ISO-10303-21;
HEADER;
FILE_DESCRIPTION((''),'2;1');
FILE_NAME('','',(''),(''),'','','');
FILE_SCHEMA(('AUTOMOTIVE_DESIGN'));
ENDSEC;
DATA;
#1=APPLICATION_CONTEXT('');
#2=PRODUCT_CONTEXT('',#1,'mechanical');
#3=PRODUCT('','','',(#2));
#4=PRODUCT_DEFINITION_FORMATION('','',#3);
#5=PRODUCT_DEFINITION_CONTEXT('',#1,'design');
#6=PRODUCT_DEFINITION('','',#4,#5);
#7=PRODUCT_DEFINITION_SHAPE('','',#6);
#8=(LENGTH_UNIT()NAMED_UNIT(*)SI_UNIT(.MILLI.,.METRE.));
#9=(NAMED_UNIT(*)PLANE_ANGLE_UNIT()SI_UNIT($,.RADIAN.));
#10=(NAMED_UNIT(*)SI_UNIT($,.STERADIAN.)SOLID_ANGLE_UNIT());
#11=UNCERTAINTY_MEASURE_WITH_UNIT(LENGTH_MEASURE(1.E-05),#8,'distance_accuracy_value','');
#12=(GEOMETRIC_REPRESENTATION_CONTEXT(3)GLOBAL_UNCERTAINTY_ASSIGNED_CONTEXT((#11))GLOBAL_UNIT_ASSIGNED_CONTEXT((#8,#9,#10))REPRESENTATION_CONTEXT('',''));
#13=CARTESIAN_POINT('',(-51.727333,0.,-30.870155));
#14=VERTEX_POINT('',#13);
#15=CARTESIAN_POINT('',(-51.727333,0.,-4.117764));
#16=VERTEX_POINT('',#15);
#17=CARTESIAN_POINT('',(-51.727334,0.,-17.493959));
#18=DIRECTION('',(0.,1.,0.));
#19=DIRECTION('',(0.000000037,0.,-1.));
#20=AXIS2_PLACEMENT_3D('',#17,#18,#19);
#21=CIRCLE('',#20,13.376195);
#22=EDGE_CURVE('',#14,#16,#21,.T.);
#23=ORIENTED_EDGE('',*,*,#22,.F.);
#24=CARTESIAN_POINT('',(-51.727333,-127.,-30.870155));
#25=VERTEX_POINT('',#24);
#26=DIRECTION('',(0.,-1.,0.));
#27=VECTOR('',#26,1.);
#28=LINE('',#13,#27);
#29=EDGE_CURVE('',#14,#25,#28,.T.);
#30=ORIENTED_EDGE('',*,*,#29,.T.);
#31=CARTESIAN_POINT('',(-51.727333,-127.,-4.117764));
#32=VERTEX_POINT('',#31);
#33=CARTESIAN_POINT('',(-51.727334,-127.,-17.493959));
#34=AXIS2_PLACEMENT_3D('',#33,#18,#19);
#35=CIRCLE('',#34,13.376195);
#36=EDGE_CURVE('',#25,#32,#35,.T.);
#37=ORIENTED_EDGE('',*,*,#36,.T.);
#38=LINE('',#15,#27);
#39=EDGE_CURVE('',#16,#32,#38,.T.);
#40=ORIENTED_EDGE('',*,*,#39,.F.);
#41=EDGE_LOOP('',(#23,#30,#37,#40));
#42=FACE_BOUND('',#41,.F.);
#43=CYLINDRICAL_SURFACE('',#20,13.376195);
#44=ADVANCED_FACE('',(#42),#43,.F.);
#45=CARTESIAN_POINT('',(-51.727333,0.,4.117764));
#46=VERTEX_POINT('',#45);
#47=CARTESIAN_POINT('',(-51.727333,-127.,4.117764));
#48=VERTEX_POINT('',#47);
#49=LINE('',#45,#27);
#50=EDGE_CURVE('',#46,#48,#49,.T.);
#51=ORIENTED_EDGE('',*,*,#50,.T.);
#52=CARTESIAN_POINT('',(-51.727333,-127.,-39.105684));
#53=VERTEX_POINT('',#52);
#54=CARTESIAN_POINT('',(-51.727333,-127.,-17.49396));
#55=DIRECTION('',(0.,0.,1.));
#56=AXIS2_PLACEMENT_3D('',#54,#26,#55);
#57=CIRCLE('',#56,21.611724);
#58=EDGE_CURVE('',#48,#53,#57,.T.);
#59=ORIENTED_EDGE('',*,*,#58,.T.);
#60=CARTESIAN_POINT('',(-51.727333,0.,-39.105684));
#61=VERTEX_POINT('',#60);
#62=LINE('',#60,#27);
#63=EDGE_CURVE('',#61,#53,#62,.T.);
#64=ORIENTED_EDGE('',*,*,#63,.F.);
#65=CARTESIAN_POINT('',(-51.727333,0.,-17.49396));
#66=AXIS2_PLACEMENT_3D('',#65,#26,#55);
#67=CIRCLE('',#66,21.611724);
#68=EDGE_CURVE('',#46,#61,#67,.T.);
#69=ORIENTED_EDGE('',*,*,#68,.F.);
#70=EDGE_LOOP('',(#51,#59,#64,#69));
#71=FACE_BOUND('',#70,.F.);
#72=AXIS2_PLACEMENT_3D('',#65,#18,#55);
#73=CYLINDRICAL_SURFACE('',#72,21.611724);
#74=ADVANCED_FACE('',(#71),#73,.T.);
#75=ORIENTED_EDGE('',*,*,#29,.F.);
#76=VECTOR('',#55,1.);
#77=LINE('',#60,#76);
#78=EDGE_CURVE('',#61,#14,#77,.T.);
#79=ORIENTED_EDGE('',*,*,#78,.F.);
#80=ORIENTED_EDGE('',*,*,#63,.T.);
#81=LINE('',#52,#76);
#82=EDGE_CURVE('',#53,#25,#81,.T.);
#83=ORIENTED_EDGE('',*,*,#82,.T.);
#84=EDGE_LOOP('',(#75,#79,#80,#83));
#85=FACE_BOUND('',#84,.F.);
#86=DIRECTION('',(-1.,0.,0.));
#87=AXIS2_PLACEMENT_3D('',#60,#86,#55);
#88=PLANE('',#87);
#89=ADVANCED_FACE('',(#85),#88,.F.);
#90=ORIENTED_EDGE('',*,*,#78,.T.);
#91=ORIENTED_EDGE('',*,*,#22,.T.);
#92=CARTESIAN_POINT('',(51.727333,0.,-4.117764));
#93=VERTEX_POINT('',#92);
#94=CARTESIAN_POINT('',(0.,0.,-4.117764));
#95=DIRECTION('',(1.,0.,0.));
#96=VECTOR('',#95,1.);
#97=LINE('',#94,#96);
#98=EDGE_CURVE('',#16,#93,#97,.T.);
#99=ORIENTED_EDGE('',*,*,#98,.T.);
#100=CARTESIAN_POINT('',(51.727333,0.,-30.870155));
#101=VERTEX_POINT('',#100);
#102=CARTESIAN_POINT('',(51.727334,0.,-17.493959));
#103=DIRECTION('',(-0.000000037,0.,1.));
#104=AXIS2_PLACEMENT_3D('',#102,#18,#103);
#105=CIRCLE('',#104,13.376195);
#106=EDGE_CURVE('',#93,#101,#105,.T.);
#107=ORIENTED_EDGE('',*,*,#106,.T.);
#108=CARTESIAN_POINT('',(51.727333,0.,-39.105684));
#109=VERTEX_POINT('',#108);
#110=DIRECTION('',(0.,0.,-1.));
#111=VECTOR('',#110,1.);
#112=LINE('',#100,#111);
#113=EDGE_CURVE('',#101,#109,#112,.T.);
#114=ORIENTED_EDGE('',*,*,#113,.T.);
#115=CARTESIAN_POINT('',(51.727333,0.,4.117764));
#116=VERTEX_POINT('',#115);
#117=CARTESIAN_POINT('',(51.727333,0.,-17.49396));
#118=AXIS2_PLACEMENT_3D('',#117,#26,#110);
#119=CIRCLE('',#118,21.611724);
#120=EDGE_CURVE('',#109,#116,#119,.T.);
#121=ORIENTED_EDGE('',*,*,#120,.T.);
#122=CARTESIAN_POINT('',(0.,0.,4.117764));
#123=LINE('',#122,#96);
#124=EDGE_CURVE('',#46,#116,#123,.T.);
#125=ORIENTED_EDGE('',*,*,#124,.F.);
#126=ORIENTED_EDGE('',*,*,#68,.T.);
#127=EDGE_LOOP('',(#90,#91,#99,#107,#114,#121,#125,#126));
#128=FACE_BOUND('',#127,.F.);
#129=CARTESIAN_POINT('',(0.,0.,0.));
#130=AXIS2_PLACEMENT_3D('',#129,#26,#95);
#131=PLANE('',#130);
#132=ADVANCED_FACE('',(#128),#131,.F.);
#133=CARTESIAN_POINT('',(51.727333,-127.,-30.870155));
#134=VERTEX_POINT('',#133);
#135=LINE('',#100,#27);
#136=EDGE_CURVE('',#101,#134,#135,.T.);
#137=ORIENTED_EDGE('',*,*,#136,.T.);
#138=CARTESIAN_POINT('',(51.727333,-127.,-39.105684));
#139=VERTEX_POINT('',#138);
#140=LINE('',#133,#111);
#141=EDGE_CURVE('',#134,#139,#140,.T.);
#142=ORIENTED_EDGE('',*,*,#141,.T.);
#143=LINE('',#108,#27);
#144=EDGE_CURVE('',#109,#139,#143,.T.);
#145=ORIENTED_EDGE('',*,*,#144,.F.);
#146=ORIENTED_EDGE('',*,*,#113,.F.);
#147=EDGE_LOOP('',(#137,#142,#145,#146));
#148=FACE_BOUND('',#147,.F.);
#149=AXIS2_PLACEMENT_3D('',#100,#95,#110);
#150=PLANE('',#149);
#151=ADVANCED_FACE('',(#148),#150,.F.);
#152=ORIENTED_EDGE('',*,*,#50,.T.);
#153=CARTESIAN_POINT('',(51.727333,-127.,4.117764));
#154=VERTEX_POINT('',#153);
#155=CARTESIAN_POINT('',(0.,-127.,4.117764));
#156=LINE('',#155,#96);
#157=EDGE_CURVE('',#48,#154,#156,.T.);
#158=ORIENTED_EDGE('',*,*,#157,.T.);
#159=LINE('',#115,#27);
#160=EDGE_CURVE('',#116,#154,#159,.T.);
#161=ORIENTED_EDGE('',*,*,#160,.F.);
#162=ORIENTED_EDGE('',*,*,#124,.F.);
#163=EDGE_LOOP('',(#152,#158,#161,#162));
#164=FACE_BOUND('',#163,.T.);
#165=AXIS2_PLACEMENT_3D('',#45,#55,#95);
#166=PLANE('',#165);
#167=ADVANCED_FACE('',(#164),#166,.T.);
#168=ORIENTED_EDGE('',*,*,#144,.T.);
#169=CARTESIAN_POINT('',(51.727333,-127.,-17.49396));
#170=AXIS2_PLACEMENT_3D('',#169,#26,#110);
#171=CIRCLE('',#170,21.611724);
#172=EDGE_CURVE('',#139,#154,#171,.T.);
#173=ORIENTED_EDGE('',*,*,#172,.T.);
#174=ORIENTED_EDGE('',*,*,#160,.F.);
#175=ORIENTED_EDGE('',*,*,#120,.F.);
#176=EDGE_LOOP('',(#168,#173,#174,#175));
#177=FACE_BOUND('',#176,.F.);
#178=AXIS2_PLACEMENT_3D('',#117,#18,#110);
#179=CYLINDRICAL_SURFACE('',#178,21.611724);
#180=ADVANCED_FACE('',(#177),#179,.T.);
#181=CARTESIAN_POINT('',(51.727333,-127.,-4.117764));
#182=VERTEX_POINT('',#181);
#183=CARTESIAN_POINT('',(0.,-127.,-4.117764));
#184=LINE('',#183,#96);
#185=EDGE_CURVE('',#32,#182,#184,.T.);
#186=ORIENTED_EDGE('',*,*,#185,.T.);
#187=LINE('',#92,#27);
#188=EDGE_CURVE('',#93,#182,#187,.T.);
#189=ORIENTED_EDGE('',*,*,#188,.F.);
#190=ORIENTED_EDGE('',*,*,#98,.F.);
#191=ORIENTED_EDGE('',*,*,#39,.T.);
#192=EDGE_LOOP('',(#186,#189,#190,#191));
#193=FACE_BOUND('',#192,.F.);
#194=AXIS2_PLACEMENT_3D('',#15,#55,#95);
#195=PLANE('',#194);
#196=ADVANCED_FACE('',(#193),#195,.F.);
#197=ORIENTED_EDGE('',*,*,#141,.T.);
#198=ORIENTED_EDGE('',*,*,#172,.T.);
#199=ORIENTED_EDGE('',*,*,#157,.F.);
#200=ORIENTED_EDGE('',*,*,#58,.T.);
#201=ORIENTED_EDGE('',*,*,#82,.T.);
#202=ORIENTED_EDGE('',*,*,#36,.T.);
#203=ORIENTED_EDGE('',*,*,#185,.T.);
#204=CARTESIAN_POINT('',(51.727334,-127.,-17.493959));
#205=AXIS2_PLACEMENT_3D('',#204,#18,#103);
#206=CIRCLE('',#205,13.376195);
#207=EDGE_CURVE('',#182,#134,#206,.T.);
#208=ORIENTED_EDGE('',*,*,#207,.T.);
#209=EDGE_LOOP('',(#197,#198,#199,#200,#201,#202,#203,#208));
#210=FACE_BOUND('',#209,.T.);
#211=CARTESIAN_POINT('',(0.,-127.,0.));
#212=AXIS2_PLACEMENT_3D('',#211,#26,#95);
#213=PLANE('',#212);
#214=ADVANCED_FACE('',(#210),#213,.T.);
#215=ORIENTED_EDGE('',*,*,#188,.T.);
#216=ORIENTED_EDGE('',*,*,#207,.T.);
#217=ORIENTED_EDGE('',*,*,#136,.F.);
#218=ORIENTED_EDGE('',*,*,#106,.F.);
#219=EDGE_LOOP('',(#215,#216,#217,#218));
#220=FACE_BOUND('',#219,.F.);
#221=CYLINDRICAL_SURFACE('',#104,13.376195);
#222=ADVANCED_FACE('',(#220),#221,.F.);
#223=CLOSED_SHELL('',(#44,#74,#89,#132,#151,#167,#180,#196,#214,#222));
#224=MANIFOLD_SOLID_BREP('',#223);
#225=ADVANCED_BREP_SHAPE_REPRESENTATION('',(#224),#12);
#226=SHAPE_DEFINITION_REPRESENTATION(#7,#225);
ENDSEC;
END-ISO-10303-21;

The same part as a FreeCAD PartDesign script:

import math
import FreeCAD as App
import Part
import Sketcher
Q = App.Units.Quantity

doc = App.newDocument("Part")
body = doc.addObject("PartDesign::Body", "Body")

# Sketch on XZ plane
sketch1 = body.newObject("Sketcher::SketchObject", "Sketch")
sketch1.AttachmentSupport = (doc.getObject("XZ_Plane"), [""])
sketch1.MapMode = "FlatFace"
sketch1.addGeometry([
    Part.LineSegment(App.Vector(-52, -4, 0), App.Vector(52, -4, 0)),  # 0
    Part.ArcOfCircle(Part.Circle(App.Vector(52, -17, 0), App.Vector(0, 0, 1), 13), math.radians(-90), math.radians(90)),  # 1
    Part.LineSegment(App.Vector(52, -31, 0), App.Vector(52, -39, 0)),  # 2
    Part.ArcOfCircle(Part.Circle(App.Vector(52, -17, 0), App.Vector(0, 0, 1), 22), math.radians(-90), math.radians(90)),  # 3
    Part.LineSegment(App.Vector(52, 4, 0), App.Vector(-52, 4, 0)),  # 4
    Part.ArcOfCircle(Part.Circle(App.Vector(-52, -17, 0), App.Vector(0, 0, 1), 22), math.radians(90), math.radians(270)),  # 5
    Part.LineSegment(App.Vector(-52, -39, 0), App.Vector(-52, -31, 0)),  # 6
    Part.ArcOfCircle(Part.Circle(App.Vector(-52, -17, 0), App.Vector(0, 0, 1), 13), math.radians(90), math.radians(270)),  # 7
], False)
sketch1.addConstraint([
    Sketcher.Constraint("Tangent", 0, 2, 1, 2),
    Sketcher.Constraint("Coincident", 1, 1, 2, 1),
    Sketcher.Constraint("Coincident", 2, 2, 3, 1),
    Sketcher.Constraint("Tangent", 3, 2, 4, 1),
    Sketcher.Constraint("Tangent", 4, 2, 5, 1),
    Sketcher.Constraint("Coincident", 5, 2, 6, 1),
    Sketcher.Constraint("Coincident", 6, 2, 7, 2),
    Sketcher.Constraint("Tangent", 7, 1, 0, 1),
    Sketcher.Constraint("Horizontal", 0),
    Sketcher.Constraint("Vertical", 2),
    Sketcher.Constraint("Horizontal", 4),
    Sketcher.Constraint("Vertical", 6),
    Sketcher.Constraint("Coincident", 3, 3, 1, 3),
    Sketcher.Constraint("Coincident", 7, 3, 5, 3),
    Sketcher.Constraint("Equal", 3, 5),
    Sketcher.Constraint("Symmetric", 0, 2, 4, 2, -1, 1),
    Sketcher.Constraint("Vertical", 0, 2, 1, 1),
    Sketcher.Constraint("Vertical", 4, 2, 5, 2),
    Sketcher.Constraint("Radius", 1, Q("13.376195 mm")),
    Sketcher.Constraint("Radius", 3, Q("21.611724 mm")),
    Sketcher.Constraint("DistanceX", 0, 1, 0, 2, Q("103.454666 mm")),
])
pad1 = body.newObject("PartDesign::Pad", "Pad")
pad1.Profile = sketch1
pad1.Length = Q("5 in")

doc.recompute()
